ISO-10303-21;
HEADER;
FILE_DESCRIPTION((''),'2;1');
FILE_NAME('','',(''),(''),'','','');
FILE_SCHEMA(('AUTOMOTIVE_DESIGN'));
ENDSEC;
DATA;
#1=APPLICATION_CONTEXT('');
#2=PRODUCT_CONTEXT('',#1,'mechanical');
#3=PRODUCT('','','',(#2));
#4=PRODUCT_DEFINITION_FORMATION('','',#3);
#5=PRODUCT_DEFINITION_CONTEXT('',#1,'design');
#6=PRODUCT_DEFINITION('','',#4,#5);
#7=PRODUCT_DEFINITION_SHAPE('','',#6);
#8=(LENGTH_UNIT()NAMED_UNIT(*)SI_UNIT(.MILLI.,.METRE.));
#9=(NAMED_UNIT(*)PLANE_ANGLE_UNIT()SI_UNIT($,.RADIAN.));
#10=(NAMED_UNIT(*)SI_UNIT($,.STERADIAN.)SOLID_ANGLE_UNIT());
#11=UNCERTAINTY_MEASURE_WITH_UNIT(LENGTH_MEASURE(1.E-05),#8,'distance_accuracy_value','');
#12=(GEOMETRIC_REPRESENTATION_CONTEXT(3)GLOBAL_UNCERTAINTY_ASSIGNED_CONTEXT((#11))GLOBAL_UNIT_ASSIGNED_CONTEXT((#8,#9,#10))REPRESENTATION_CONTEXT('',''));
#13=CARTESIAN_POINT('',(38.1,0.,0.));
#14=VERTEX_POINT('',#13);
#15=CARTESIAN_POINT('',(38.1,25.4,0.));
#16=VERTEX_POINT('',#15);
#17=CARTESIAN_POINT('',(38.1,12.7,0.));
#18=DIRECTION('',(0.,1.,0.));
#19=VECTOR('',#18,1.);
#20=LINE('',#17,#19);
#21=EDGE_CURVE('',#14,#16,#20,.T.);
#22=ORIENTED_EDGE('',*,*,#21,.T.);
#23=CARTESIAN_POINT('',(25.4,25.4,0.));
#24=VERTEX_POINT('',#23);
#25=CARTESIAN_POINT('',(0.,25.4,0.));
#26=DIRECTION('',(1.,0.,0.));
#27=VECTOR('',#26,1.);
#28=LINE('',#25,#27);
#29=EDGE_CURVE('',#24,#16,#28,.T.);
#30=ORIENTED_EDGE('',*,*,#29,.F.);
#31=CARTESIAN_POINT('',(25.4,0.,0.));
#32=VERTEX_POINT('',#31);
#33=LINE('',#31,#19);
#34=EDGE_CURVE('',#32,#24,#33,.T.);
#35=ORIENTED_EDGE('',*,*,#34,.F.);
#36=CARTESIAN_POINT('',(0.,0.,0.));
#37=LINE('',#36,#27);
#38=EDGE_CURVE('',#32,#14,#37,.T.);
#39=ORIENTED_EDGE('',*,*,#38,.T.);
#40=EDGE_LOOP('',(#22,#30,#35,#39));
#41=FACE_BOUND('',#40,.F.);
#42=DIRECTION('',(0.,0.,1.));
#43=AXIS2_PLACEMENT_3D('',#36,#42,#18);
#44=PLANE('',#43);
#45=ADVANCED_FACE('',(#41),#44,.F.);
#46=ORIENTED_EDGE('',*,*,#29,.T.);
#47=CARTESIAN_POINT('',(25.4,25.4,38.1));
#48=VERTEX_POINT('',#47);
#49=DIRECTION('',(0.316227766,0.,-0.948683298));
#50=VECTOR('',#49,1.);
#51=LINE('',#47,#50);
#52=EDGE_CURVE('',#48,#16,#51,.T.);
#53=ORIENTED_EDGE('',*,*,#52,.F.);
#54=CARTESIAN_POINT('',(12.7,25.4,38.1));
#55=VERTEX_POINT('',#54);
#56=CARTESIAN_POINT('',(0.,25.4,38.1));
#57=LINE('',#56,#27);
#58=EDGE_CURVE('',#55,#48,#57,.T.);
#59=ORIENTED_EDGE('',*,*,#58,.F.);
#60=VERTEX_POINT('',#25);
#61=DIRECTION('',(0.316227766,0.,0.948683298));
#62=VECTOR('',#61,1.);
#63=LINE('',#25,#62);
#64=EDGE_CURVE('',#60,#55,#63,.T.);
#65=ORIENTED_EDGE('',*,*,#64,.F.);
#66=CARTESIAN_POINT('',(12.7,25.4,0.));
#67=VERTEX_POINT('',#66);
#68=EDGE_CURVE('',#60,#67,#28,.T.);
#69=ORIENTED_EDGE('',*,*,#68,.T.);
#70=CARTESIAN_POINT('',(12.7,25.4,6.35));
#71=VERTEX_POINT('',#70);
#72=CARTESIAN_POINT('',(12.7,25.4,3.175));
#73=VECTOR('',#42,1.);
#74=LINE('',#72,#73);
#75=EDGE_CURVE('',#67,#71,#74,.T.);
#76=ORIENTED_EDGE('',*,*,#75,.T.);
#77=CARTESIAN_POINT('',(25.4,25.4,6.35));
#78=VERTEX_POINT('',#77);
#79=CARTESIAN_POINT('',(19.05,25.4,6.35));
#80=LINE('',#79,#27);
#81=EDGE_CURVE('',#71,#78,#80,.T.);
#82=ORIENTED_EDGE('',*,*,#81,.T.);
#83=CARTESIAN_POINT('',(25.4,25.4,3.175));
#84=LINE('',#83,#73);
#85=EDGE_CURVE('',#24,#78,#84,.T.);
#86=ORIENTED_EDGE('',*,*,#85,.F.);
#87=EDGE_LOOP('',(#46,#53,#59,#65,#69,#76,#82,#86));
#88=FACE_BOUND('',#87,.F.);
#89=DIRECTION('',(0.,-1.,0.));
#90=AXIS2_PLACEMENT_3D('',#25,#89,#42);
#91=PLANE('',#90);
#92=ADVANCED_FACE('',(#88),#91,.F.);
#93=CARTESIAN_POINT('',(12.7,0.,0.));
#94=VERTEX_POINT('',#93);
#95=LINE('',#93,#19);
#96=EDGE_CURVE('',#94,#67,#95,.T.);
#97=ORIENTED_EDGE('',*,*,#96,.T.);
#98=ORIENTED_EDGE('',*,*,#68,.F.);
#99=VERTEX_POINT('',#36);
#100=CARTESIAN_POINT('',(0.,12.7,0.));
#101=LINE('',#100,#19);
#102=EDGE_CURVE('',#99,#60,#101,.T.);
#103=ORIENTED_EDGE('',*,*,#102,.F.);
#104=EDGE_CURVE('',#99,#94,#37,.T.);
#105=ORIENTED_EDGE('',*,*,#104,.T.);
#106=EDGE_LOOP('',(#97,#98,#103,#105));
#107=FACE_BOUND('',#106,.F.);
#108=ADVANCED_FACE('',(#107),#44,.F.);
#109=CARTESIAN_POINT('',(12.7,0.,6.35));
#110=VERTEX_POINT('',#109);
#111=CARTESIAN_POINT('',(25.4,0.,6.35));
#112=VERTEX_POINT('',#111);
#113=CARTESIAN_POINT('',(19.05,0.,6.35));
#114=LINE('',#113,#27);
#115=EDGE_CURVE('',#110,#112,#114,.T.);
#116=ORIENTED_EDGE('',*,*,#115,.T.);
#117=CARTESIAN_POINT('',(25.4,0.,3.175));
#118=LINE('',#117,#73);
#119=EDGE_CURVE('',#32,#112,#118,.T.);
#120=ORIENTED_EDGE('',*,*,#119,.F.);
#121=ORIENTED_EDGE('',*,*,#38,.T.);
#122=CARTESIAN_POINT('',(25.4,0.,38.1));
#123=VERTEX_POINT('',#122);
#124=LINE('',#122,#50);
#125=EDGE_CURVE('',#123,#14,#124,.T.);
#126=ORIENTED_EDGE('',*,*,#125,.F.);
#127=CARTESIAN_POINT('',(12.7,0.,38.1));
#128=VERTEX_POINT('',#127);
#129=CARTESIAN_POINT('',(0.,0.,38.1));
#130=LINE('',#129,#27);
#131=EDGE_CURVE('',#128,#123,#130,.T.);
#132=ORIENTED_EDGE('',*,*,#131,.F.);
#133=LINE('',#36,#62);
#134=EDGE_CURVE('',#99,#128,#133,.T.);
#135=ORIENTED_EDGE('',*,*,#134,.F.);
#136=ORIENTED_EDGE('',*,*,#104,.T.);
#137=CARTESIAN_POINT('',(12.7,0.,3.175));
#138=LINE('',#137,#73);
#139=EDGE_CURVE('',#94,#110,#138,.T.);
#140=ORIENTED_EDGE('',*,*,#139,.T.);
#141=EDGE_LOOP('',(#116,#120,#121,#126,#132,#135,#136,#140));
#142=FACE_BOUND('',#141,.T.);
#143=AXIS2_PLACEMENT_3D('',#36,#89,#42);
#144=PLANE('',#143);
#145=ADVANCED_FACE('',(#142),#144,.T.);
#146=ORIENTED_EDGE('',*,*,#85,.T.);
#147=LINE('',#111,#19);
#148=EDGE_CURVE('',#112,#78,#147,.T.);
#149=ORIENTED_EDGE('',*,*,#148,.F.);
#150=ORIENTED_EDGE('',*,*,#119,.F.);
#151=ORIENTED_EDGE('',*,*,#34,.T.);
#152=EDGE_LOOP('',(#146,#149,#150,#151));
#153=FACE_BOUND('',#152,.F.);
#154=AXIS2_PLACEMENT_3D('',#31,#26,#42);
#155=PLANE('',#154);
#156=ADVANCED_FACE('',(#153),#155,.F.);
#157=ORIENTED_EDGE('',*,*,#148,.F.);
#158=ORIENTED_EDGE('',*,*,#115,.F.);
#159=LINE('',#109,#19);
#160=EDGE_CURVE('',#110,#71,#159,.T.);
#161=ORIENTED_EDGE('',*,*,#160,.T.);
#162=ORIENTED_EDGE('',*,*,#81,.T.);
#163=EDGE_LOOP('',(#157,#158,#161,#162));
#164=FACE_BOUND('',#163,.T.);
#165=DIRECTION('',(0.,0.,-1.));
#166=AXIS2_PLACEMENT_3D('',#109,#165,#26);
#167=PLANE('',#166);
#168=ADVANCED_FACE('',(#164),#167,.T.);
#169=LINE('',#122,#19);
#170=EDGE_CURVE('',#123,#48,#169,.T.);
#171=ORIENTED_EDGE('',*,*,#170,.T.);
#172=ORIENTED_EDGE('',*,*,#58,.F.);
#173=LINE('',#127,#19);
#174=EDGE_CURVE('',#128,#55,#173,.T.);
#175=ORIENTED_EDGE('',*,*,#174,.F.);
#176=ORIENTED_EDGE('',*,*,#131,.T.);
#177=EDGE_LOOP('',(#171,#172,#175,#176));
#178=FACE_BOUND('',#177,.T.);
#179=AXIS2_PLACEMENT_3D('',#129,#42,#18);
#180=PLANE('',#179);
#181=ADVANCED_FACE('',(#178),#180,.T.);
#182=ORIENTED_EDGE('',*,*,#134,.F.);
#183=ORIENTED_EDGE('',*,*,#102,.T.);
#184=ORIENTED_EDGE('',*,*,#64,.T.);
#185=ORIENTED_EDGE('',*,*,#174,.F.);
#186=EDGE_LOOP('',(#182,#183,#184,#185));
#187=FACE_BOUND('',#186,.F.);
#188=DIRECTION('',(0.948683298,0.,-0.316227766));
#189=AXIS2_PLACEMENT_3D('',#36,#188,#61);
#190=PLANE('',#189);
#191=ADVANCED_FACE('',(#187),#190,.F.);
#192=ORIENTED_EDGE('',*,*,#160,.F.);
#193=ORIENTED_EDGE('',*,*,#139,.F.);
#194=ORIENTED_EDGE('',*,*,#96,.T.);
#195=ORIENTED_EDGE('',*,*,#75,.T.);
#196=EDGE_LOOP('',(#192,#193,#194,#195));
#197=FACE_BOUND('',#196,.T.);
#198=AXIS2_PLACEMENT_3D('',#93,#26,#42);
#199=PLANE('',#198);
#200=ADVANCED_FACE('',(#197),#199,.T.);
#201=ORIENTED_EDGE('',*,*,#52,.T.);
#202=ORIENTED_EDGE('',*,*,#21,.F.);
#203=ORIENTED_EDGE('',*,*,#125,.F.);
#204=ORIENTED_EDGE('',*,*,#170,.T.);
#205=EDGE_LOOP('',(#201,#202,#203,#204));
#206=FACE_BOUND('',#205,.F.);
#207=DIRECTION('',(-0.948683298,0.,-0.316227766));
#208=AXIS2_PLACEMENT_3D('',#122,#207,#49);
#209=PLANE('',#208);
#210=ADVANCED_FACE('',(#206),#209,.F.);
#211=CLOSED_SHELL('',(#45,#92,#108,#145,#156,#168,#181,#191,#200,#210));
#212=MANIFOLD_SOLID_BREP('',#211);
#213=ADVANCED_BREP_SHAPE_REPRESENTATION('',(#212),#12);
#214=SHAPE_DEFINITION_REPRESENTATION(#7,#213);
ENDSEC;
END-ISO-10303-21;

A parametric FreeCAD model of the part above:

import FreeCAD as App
import Part
import Sketcher

V = App.Vector
Q = App.Units.Quantity


def add_polygon(sketch, points):
    """Adds a closed chain of lines whose ends are joined by coincident constraints."""
    first, n = sketch.GeometryCount, len(points)
    for a, b in zip(points, points[1:] + points[:1]):
        sketch.addGeometry(Part.LineSegment(App.Vector(*a, 0), App.Vector(*b, 0)), False)
    for i in range(n):
        sketch.addConstraint(Sketcher.Constraint("Coincident", first + i, 2, first + (i + 1) % n, 1))

doc = App.newDocument("Part")
body = doc.addObject("PartDesign::Body", "Body")

# Sketch on YZ plane
sketch1 = doc.addObject("Sketcher::SketchObject", "Sketch")
body.addObject(sketch1)
sketch1.AttachmentSupport = (doc.YZ_Plane, [""])
sketch1.MapMode = "FlatFace"
add_polygon(sketch1, [(0, 38), (0, 0), (25, 0), (25, 38)])  # lines 0-3
sketch1.addConstraint(Sketcher.Constraint("Vertical", 0))
sketch1.addConstraint(Sketcher.Constraint("Horizontal", 1))
sketch1.addConstraint(Sketcher.Constraint("Vertical", 2))
sketch1.addConstraint(Sketcher.Constraint("Horizontal", 3))
sketch1.addConstraint(Sketcher.Constraint("Coincident", 0, 2, -1, 1))
sketch1.addConstraint(Sketcher.Constraint("DistanceX", 1, 1, 1, 2, Q("1 in")))
sketch1.addConstraint(Sketcher.Constraint("DistanceY", 0, 2, 0, 1, Q("1.5 in")))
pad1 = doc.addObject("PartDesign::Pad", "Pad")
body.addObject(pad1)
pad1.Profile = sketch1
pad1.Length = Q("1.5 in")

# Sketch on XZ plane
sketch2 = doc.addObject("Sketcher::SketchObject", "Sketch001")
body.addObject(sketch2)
sketch2.AttachmentSupport = (doc.XZ_Plane, [""])
sketch2.MapMode = "FlatFace"
add_polygon(sketch2, [(13, 6), (13, 0), (25, 0), (25, 6)])  # lines 0-3
sketch2.addConstraint(Sketcher.Constraint("Vertical", 0))
sketch2.addConstraint(Sketcher.Constraint("Horizontal", 1))
sketch2.addConstraint(Sketcher.Constraint("Vertical", 2))
sketch2.addConstraint(Sketcher.Constraint("Horizontal", 3))
sketch2.addConstraint(Sketcher.Constraint("PointOnObject", 0, 2, -1))
sketch2.addConstraint(Sketcher.Constraint("DistanceX", 1, 1, 1, 2, Q("0.5 in")))
sketch2.addConstraint(Sketcher.Constraint("DistanceX", -1, 1, 1, 2, Q("1 in")))
sketch2.addConstraint(Sketcher.Constraint("DistanceY", 0, 2, 0, 1, Q("0.25 in")))
pocket1 = doc.addObject("PartDesign::Pocket", "Pocket")
body.addObject(pocket1)
pocket1.Profile = sketch2
pocket1.Length = Q("1 in")

# Sketch on XZ plane
sketch3 = doc.addObject("Sketcher::SketchObject", "Sketch002")
body.addObject(sketch3)
sketch3.AttachmentSupport = (doc.XZ_Plane, [""])
sketch3.MapMode = "FlatFace"
add_polygon(sketch3, [(38, 38), (25, 38), (38, 0)])  # lines 0-2
sketch3.addConstraint(Sketcher.Constraint("Horizontal", 0))
sketch3.addConstraint(Sketcher.Constraint("Vertical", 2))
sketch3.addConstraint(Sketcher.Constraint("PointOnObject", 1, 2, -1))
sketch3.addConstraint(Sketcher.Constraint("DistanceX", 0, 2, 0, 1, Q("0.5 in")))
sketch3.addConstraint(Sketcher.Constraint("DistanceY", 2, 1, 2, 2, Q("1.5 in")))
sketch3.addConstraint(Sketcher.Constraint("DistanceX", -1, 1, 0, 2, Q("1 in")))
pocket2 = doc.addObject("PartDesign::Pocket", "Pocket001")
body.addObject(pocket2)
pocket2.Profile = sketch3
pocket2.Length = Q("1 in")

# Sketch on XZ plane
sketch4 = doc.addObject("Sketcher::SketchObject", "Sketch003")
body.addObject(sketch4)
sketch4.AttachmentSupport = (doc.XZ_Plane, [""])
sketch4.MapMode = "FlatFace"
add_polygon(sketch4, [(0, 38), (0, 0), (13, 38)])  # lines 0-2
sketch4.addConstraint(Sketcher.Constraint("Vertical", 0))
sketch4.addConstraint(Sketcher.Constraint("Horizontal", 2))
sketch4.addConstraint(Sketcher.Constraint("Coincident", 0, 2, -1, 1))
sketch4.addConstraint(Sketcher.Constraint("DistanceX", 2, 2, 2, 1, Q("0.5 in")))
sketch4.addConstraint(Sketcher.Constraint("DistanceY", 0, 2, 0, 1, Q("1.5 in")))
pocket3 = doc.addObject("PartDesign::Pocket", "Pocket002")
body.addObject(pocket3)
pocket3.Profile = sketch4
pocket3.Length = Q("1 in")

doc.recompute()
